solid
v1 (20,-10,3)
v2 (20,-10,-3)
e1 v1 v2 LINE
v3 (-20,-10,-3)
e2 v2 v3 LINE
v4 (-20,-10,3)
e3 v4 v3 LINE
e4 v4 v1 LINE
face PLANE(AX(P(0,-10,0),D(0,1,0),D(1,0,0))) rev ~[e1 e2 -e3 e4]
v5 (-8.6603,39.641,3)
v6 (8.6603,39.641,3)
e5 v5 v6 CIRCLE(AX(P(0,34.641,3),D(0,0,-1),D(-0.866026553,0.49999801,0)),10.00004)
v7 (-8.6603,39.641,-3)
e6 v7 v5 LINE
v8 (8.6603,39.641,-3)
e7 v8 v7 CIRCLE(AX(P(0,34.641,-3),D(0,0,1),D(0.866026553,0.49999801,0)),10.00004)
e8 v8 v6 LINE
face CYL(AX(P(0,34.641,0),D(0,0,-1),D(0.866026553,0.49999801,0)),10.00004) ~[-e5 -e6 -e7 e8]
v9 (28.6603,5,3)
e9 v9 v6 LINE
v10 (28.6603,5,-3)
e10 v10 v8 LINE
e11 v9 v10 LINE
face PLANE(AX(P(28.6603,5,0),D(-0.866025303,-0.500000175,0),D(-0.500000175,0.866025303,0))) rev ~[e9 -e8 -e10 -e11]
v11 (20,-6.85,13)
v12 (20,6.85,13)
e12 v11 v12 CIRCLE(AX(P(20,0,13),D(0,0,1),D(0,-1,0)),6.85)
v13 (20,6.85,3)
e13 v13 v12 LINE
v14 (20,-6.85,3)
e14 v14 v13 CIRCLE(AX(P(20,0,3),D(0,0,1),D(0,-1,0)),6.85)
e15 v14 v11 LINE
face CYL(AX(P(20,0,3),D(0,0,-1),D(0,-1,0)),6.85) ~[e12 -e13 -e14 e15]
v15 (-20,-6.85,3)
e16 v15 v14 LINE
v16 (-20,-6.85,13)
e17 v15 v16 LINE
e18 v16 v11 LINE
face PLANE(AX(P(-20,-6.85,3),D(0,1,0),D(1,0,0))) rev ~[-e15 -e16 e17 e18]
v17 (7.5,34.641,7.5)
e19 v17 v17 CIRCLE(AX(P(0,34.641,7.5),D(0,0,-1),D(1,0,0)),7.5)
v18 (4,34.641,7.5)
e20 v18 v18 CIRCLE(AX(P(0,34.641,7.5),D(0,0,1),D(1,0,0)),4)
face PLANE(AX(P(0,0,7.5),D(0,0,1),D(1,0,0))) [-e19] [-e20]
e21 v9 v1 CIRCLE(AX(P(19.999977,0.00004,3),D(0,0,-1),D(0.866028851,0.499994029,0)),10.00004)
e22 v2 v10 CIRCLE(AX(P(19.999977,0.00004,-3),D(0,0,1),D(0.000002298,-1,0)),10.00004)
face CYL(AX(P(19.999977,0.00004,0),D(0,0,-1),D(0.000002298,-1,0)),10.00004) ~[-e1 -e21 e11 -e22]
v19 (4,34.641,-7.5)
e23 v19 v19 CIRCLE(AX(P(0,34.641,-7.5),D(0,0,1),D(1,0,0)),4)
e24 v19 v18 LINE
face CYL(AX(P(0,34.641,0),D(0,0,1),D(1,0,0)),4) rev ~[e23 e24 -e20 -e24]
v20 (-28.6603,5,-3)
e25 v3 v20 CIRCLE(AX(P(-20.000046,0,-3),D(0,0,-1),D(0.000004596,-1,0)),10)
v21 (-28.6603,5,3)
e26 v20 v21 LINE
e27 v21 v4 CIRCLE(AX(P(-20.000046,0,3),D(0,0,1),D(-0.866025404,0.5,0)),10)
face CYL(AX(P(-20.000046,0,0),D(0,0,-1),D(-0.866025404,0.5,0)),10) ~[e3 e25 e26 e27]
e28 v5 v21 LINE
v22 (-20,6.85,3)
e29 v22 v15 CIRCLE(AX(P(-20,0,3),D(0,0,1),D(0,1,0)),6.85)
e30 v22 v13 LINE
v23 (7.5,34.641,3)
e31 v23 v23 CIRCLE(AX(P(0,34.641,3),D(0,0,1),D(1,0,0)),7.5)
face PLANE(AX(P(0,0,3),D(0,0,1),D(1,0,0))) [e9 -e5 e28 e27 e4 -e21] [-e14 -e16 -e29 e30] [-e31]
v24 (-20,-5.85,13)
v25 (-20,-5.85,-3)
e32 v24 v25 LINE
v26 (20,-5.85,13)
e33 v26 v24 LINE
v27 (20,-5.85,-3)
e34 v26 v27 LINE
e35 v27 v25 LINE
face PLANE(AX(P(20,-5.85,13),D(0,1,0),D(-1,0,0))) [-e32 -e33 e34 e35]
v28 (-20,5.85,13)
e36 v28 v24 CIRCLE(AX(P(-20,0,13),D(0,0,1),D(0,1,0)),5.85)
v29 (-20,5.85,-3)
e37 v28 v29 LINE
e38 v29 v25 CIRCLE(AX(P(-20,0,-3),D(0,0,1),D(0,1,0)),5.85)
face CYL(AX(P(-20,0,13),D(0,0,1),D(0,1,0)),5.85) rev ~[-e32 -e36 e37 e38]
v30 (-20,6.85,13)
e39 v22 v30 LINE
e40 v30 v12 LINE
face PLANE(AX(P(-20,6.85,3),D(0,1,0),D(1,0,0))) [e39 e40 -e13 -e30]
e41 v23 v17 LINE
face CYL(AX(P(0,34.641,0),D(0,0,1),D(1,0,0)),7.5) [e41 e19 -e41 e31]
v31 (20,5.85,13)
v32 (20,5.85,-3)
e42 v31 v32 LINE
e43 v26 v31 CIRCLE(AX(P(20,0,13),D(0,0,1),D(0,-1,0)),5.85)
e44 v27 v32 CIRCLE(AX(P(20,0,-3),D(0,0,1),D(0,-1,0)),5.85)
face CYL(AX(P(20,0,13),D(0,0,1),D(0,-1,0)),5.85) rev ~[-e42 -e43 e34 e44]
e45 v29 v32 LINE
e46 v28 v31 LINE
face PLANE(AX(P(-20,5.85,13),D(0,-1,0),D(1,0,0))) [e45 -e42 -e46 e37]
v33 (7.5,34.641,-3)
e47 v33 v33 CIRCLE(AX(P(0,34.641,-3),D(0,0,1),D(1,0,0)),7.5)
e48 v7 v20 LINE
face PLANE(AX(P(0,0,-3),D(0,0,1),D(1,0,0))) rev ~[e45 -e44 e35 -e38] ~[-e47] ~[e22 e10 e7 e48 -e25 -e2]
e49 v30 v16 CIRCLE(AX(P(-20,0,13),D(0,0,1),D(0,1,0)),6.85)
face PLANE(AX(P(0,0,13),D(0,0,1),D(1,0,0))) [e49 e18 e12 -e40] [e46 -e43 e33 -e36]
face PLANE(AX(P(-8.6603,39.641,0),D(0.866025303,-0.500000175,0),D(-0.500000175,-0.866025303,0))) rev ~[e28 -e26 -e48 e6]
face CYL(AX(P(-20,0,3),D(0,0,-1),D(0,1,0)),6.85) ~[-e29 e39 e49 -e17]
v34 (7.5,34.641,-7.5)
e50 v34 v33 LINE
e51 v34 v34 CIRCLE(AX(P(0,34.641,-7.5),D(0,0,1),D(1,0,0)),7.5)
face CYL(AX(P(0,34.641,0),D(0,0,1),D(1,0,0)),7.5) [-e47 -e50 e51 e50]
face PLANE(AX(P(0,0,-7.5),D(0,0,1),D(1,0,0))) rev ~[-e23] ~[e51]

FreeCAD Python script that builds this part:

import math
import FreeCAD as App
import Part
import Sketcher

doc = App.newDocument("Part")
body = doc.addObject("PartDesign::Body", "Body")

# Sketch on XY plane
sketch1 = doc.addObject("Sketcher::SketchObject", "Sketch")
body.addObject(sketch1)
sketch1.AttachmentSupport = (doc.XY_Plane, [""])
sketch1.MapMode = "FlatFace"
sketch1.addGeometry([
    Part.LineSegment(App.Vector(29, 5, 0), App.Vector(9, 40, 0)),  # 0
    Part.ArcOfCircle(Part.Circle(App.Vector(0, 35, 0), App.Vector(0, 0, 1), 10), math.radians(30), math.radians(150)),  # 1
    Part.LineSegment(App.Vector(-9, 40, 0), App.Vector(-29, 5, 0)),  # 2
    Part.ArcOfCircle(Part.Circle(App.Vector(-20, 0, 0), App.Vector(0, 0, 1), 10), math.radians(150), math.radians(270)),  # 3
    Part.LineSegment(App.Vector(-20, -10, 0), App.Vector(20, -10, 0)),  # 4
    Part.ArcOfCircle(Part.Circle(App.Vector(20, 0, 0), App.Vector(0, 0, 1), 10), math.radians(-90), math.radians(30)),  # 5
], False)
sketch1.addConstraint([
    Sketcher.Constraint("Tangent", 0, 2, 1, 1),
    Sketcher.Constraint("Tangent", 1, 2, 2, 1),
    Sketcher.Constraint("Tangent", 2, 2, 3, 1),
    Sketcher.Constraint("Tangent", 3, 2, 4, 1),
    Sketcher.Constraint("Tangent", 4, 2, 5, 1),
    Sketcher.Constraint("Tangent", 5, 2, 0, 1),
    Sketcher.Constraint("Horizontal", 4),
    Sketcher.Constraint("Equal", 1, 3),
    Sketcher.Constraint("Equal", 3, 5),
    Sketcher.Constraint("Symmetric", 3, 3, 5, 3, -1, 1),
    Sketcher.Constraint("PointOnObject", 1, 3, -2),
    Sketcher.Constraint("Radius", 1, 10.0),
    Sketcher.Constraint("DistanceX", 4, 1, 4, 2, 40.0),
    Sketcher.Constraint("Distance", 0, 40.0),
])
pad1 = doc.addObject("PartDesign::Pad", "Pad")
body.addObject(pad1)
pad1.Profile = sketch1
pad1.Length = 6
pad1.Midplane = True

# Sketch on XY plane
sketch2 = doc.addObject("Sketcher::SketchObject", "Sketch001")
body.addObject(sketch2)
sketch2.AttachmentSupport = (doc.XY_Plane, [""])
sketch2.MapMode = "FlatFace"
sketch2.addGeometry(Part.Circle(App.Vector(0, 35, 0), App.Vector(0, 0, 1), 8), False)
sketch2.addConstraint([
    Sketcher.Constraint("PointOnObject", 0, 3, -2),
    Sketcher.Constraint("Diameter", 0, 15.0),
    Sketcher.Constraint("DistanceY", -1, 1, 0, 3, 34.641),
])
pad2 = doc.addObject("PartDesign::Pad", "Pad001")
body.addObject(pad2)
pad2.Profile = sketch2
pad2.Length = 15
pad2.Midplane = True

# Sketch on XY plane
sketch3 = doc.addObject("Sketcher::SketchObject", "Sketch002")
body.addObject(sketch3)
sketch3.AttachmentSupport = (doc.XY_Plane, [""])
sketch3.MapMode = "FlatFace"
sketch3.addGeometry(Part.Circle(App.Vector(0, 34.6, 0), App.Vector(0, 0, 1), 4), False)
sketch3.addConstraint([
    Sketcher.Constraint("PointOnObject", 0, 3, -2),
    Sketcher.Constraint("Diameter", 0, 8.0),
    Sketcher.Constraint("DistanceY", -1, 1, 0, 3, 34.641),
])
pocket1 = doc.addObject("PartDesign::Pocket", "Pocket")
body.addObject(pocket1)
pocket1.Profile = sketch3
pocket1.Type = "ThroughAll"
pocket1.Midplane = True

# Sketch on XY plane
sketch4 = doc.addObject("Sketcher::SketchObject", "Sketch003")
body.addObject(sketch4)
sketch4.AttachmentSupport = (doc.XY_Plane, [""])
sketch4.MapMode = "FlatFace"
sketch4.AttachmentOffset = App.Placement(App.Vector(0, 0, 3), App.Rotation())
sketch4.addGeometry([
    Part.LineSegment(App.Vector(20, 7, 0), App.Vector(-20, 7, 0)),
    Part.ArcOfCircle(Part.Circle(App.Vector(-20, 0, 0), App.Vector(0, 0, 1), 7), math.radians(90), math.radians(270)),
    Part.LineSegment(App.Vector(-20, -7, 0), App.Vector(20, -7, 0)),
    Part.ArcOfCircle(Part.Circle(App.Vector(20, 0, 0), App.Vector(0, 0, 1), 7), math.radians(-90), math.radians(90)),
], False)
sketch4.addConstraint([
    Sketcher.Constraint("Tangent", 0, 2, 1, 1),
    Sketcher.Constraint("Tangent", 1, 2, 2, 1),
    Sketcher.Constraint("Tangent", 2, 2, 3, 1),
    Sketcher.Constraint("Tangent", 3, 2, 0, 1),
    Sketcher.Constraint("Horizontal", 0),
    Sketcher.Constraint("Horizontal", 2),
    Sketcher.Constraint("Symmetric", 1, 3, 3, 3, -1, 1),
    Sketcher.Constraint("DistanceX", 0, 2, 0, 1, 40.0),
    Sketcher.Constraint("Radius", 1, 6.85),
])
pad3 = doc.addObject("PartDesign::Pad", "Pad002")
body.addObject(pad3)
pad3.Profile = sketch4
pad3.Length = 10

# Sketch on XY plane
sketch5 = doc.addObject("Sketcher::SketchObject", "Sketch004")
body.addObject(sketch5)
sketch5.AttachmentSupport = (doc.XY_Plane, [""])
sketch5.MapMode = "FlatFace"
sketch5.AttachmentOffset = App.Placement(App.Vector(0, 0, 13), App.Rotation())
sketch5.addGeometry([
    Part.LineSegment(App.Vector(-20, -6, 0), App.Vector(20, -6, 0)),
    Part.ArcOfCircle(Part.Circle(App.Vector(20, 0, 0), App.Vector(0, 0, 1), 6), math.radians(-90), math.radians(90)),
    Part.LineSegment(App.Vector(20, 6, 0), App.Vector(-20, 6, 0)),
    Part.ArcOfCircle(Part.Circle(App.Vector(-20, 0, 0), App.Vector(0, 0, 1), 6), math.radians(90), math.radians(270)),
], False)
sketch5.addConstraint([
    Sketcher.Constraint("Tangent", 0, 2, 1, 1),
    Sketcher.Constraint("Tangent", 1, 2, 2, 1),
    Sketcher.Constraint("Tangent", 2, 2, 3, 1),
    Sketcher.Constraint("Tangent", 3, 2, 0, 1),
    Sketcher.Constraint("Horizontal", 0),
    Sketcher.Constraint("Horizontal", 2),
    Sketcher.Constraint("Symmetric", 1, 3, 3, 3, -1, 1),
    Sketcher.Constraint("DistanceX", 0, 1, 0, 2, 40.0),
    Sketcher.Constraint("Radius", 1, 5.85),
])
pocket2 = doc.addObject("PartDesign::Pocket", "Pocket001")
body.addObject(pocket2)
pocket2.Profile = sketch5
pocket2.Type = "ThroughAll"

doc.recompute()
